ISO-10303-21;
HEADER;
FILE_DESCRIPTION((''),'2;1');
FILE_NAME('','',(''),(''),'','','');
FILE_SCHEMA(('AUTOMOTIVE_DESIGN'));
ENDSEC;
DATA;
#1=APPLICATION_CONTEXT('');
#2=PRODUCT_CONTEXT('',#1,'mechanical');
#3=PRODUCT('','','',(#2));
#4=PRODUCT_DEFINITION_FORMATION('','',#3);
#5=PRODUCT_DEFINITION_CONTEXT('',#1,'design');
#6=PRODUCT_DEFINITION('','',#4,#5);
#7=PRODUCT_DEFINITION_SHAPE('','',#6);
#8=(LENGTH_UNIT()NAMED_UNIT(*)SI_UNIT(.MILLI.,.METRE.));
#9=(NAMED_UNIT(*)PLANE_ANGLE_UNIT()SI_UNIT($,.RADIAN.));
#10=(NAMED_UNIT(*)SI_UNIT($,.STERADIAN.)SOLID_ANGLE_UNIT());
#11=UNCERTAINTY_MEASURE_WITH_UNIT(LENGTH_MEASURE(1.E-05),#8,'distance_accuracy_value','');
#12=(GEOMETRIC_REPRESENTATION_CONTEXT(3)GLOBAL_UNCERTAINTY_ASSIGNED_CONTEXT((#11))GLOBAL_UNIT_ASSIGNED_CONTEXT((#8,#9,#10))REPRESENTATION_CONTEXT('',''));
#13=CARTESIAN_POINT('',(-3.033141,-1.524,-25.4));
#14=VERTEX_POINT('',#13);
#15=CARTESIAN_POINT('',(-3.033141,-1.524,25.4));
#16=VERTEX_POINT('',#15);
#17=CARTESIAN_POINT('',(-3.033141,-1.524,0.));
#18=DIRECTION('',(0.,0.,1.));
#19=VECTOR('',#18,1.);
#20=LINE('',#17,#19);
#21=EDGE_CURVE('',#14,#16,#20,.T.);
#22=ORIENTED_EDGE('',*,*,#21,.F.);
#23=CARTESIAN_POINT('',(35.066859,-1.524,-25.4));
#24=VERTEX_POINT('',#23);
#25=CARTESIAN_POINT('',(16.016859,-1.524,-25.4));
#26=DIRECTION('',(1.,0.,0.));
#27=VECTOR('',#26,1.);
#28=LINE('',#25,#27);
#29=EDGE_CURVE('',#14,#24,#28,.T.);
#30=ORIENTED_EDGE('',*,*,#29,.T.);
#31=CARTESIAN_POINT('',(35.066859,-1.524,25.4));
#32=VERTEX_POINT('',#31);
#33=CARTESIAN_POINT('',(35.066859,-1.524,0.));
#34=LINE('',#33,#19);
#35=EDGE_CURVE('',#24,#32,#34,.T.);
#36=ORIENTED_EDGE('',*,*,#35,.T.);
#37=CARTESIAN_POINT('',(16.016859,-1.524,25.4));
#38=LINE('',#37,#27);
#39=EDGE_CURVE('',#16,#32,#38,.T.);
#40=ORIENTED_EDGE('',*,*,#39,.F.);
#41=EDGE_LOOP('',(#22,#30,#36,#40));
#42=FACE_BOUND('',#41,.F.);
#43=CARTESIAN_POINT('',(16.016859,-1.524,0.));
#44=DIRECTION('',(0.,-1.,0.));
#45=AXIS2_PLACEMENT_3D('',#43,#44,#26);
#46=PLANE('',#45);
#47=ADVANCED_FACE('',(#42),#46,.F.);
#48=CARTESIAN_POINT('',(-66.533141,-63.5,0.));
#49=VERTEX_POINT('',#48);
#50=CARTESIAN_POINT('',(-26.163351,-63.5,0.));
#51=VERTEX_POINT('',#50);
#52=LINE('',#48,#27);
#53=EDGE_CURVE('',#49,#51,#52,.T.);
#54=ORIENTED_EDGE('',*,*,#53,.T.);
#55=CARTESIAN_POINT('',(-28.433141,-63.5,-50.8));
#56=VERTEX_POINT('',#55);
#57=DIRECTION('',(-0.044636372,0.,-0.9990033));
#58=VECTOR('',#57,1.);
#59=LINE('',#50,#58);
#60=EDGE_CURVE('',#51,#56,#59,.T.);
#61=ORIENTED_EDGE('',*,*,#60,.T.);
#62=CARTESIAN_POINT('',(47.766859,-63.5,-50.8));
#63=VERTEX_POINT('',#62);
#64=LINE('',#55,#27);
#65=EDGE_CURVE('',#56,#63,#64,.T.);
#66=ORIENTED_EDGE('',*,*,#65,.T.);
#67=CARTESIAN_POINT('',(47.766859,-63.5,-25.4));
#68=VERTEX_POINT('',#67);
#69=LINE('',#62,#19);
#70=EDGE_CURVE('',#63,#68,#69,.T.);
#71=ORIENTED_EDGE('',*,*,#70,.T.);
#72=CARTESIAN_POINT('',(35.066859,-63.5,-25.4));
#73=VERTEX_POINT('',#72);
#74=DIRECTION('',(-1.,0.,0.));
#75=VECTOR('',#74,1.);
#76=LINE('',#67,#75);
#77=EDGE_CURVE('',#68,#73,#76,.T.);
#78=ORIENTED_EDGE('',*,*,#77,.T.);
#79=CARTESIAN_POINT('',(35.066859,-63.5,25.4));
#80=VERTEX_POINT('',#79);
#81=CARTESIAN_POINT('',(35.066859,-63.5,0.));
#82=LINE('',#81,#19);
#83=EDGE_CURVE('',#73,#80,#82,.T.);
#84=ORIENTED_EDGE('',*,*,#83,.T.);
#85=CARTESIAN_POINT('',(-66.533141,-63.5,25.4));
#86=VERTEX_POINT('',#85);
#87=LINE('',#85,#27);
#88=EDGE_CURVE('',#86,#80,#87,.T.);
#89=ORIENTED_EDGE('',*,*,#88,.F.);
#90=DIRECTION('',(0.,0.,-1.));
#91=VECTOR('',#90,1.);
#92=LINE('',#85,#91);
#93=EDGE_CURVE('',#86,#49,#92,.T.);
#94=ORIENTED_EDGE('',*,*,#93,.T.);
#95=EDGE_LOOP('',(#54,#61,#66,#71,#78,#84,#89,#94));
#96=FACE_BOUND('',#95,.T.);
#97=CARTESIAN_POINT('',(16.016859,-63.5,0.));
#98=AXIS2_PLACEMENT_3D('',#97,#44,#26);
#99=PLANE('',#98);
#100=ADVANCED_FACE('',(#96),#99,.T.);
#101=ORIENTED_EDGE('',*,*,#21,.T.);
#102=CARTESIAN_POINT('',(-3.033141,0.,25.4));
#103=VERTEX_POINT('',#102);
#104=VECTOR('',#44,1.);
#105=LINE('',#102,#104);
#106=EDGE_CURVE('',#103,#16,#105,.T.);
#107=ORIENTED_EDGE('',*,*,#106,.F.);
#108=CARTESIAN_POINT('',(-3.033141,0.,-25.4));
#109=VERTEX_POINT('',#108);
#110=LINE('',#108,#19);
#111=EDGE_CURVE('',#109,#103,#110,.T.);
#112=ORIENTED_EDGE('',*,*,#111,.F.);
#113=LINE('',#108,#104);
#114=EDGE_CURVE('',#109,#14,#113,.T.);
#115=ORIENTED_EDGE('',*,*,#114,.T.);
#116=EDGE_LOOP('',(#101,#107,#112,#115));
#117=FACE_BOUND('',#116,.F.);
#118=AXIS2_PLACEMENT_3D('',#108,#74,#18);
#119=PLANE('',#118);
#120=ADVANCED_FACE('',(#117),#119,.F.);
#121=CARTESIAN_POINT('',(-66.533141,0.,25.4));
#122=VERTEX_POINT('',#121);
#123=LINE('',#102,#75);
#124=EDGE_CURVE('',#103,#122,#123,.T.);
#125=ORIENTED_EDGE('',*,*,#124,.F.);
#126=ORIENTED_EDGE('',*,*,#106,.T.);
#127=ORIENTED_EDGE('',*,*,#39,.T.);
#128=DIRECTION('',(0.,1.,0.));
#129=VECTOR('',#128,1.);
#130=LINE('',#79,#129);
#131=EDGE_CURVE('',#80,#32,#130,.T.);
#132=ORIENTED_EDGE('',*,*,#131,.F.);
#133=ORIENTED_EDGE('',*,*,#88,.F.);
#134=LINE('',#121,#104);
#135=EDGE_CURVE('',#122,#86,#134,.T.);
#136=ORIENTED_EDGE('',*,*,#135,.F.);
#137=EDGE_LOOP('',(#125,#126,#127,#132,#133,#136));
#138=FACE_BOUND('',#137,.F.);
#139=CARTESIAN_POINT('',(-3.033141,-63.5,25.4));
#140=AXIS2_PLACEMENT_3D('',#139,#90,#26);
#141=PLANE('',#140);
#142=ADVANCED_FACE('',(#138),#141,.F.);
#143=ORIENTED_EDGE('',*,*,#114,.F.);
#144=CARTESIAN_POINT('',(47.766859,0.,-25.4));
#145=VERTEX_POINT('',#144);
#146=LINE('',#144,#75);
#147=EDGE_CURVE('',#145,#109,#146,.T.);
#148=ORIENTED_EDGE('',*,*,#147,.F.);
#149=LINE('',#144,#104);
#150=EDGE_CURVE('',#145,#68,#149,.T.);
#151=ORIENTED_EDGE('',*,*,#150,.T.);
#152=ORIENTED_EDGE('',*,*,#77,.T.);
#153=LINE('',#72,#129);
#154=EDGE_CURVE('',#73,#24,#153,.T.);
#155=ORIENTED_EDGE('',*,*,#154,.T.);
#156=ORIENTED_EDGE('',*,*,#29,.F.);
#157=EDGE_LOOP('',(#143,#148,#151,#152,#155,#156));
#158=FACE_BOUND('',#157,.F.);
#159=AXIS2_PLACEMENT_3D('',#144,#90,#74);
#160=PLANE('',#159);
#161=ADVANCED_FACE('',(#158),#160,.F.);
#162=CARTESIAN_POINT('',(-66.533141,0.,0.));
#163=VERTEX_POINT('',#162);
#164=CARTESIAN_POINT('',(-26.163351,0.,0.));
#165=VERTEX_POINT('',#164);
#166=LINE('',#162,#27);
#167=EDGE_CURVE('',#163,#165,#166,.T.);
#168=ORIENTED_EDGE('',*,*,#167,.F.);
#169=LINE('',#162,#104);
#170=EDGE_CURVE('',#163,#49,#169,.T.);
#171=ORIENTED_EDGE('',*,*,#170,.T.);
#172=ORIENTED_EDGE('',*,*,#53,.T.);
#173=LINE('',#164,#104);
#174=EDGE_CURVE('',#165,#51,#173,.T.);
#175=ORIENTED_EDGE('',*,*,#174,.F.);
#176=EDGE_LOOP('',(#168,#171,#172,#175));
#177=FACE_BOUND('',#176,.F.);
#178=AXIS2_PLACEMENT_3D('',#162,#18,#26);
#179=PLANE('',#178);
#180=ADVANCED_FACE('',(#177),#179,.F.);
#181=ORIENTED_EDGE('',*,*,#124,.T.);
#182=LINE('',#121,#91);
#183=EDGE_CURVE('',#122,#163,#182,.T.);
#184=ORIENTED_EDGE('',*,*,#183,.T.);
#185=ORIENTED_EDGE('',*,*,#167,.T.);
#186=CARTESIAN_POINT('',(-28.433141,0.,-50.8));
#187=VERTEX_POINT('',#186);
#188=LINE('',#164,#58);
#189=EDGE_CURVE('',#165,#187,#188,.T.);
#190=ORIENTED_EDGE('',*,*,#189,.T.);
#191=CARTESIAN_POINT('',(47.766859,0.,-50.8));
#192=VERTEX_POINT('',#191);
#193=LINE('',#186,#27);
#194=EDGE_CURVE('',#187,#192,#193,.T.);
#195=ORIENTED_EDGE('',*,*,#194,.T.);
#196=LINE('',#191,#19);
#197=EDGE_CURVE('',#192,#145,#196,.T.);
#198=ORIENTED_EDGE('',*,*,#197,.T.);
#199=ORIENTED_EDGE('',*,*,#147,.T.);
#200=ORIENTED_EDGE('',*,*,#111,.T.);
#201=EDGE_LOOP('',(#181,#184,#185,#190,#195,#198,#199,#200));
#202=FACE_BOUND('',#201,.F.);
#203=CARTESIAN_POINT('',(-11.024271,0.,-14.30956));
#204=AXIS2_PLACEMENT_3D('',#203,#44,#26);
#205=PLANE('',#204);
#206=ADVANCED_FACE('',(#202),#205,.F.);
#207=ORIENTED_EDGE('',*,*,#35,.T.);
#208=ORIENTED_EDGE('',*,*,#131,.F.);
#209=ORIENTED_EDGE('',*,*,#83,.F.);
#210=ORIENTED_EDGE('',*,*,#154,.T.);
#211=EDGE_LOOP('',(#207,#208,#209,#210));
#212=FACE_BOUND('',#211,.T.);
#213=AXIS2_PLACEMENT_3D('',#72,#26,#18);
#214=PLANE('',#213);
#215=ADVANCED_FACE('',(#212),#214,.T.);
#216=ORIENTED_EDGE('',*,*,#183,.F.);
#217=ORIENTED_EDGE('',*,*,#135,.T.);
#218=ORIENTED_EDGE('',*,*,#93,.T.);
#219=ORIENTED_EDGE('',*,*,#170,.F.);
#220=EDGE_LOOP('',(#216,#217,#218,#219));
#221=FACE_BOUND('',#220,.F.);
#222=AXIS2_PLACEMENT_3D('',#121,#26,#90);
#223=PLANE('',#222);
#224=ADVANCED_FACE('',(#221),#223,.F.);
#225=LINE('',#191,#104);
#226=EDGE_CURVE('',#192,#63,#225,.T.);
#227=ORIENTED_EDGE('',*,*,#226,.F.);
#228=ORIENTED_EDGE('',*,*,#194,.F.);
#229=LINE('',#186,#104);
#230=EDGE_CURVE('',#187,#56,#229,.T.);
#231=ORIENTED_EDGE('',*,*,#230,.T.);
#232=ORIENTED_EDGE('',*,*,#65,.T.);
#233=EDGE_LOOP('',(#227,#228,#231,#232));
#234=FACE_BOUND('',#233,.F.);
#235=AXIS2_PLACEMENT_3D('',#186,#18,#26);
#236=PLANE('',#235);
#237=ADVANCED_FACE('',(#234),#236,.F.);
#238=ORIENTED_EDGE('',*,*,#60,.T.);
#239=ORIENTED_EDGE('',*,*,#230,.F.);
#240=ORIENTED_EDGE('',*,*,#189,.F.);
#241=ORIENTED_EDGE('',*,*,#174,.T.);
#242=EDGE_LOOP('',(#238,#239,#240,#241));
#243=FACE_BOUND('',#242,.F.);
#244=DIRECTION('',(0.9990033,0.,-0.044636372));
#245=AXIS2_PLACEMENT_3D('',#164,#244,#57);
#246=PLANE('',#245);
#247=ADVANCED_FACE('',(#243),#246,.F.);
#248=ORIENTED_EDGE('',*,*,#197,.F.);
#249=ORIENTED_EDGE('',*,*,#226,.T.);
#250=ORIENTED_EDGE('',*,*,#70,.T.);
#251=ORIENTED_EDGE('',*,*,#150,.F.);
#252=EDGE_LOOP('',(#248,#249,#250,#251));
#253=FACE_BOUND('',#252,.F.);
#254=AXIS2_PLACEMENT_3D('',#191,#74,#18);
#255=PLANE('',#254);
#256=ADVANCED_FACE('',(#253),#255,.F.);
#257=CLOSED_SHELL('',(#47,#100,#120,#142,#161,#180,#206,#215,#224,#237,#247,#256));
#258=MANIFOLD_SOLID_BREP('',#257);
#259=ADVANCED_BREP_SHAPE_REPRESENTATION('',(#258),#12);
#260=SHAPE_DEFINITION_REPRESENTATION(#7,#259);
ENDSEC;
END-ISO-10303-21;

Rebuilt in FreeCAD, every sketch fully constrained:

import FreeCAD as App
import Part
import Sketcher
from FreeCAD import Vector
Q = App.Units.Quantity


def add_polygon(sketch, points):
    """Adds a closed chain of lines whose ends are joined by coincident constraints."""
    first, n = sketch.GeometryCount, len(points)
    for a, b in zip(points, points[1:] + points[:1]):
        sketch.addGeometry(Part.LineSegment(App.Vector(*a, 0), App.Vector(*b, 0)), False)
    for i in range(n):
        sketch.addConstraint(Sketcher.Constraint("Coincident", first + i, 2, first + (i + 1) % n, 1))

doc = App.newDocument("Part")
params = doc.addObject("Spreadsheet::Sheet", "Params")
for row, (alias, value) in enumerate([
    ("sketch1_width", "3 in"),
    ("sketch1_width2", "2 in"),
    ("sketch1_height", "1 in"),
    ("sketch1_width3", "2.5 in"),
    ("pad1_length", "2.5 in"),
    ("sketch2_height", "2 in"),
    ("sketch2_width", "1.5 in"),
    ("pad2_length", "2.44 in"),
], start=1):
    params.set(f"A{row}", alias)
    params.set(f"B{row}", "=" + value)
    params.setAlias(f"B{row}", alias)

body = doc.addObject("PartDesign::Body", "Body")

# Sketch on XZ plane
sketch1 = body.newObject("Sketcher::SketchObject", "Sketch")
sketch1.AttachmentSupport = (doc.getObject("XZ_Plane"), [""])
sketch1.MapMode = "FlatFace"
add_polygon(sketch1, [(-26, 0), (-28, -51), (48, -51), (48, -25), (-3, -25), (-3, 25), (-67, 25), (-67, 0)])  # lines 0-7
sketch1.addConstraint(Sketcher.Constraint("Horizontal", 1))
sketch1.addConstraint(Sketcher.Constraint("Vertical", 2))
sketch1.addConstraint(Sketcher.Constraint("Horizontal", 3))
sketch1.addConstraint(Sketcher.Constraint("Vertical", 4))
sketch1.addConstraint(Sketcher.Constraint("Horizontal", 5))
sketch1.addConstraint(Sketcher.Constraint("Vertical", 6))
sketch1.addConstraint(Sketcher.Constraint("Horizontal", 7))
sketch1.addConstraint(Sketcher.Constraint("PointOnObject", 6, 2, -1))
sketch1.addConstraint(Sketcher.Constraint("Equal", 3, 4))
sketch1.addConstraint(Sketcher.Constraint("Equal", 2, 6))
sketch1.addConstraint(Sketcher.Constraint("DistanceX", 1, 1, 1, 2, Q("3 in")))
sketch1.addConstraint(Sketcher.Constraint("DistanceX", 3, 2, 3, 1, Q("2 in")))
sketch1.addConstraint(Sketcher.Constraint("DistanceY", 2, 1, 2, 2, Q("1 in")))
sketch1.addConstraint(Sketcher.Constraint("DistanceX", 5, 2, 5, 1, Q("2.5 in")))
sketch1.addConstraint(Sketcher.Constraint("DistanceX", 7, 1, 7, 2, Q("40.36979 mm")))
sketch1.addConstraint(Sketcher.Constraint("DistanceX", 0, 2, -1, 1, Q("28.433141 mm")))
sketch1.setExpression("Constraints[18]", "Params.sketch1_width")
sketch1.setExpression("Constraints[19]", "Params.sketch1_width2")
sketch1.setExpression("Constraints[20]", "Params.sketch1_height")
sketch1.setExpression("Constraints[21]", "Params.sketch1_width3")
pad1 = body.newObject("PartDesign::Pad", "Pad")
pad1.Profile = sketch1
pad1.setExpression("Length", "Params.pad1_length")

# Sketch on XZ plane
sketch2 = body.newObject("Sketcher::SketchObject", "Sketch001")
sketch2.AttachmentSupport = (doc.getObject("XZ_Plane"), [""])
sketch2.MapMode = "FlatFace"
sketch2.AttachmentOffset = App.Placement(Vector(0, 0, 2.5 * 25.4), App.Rotation())
add_polygon(sketch2, [(-3, 25), (-3, -25), (35, -25), (35, 25)])  # lines 0-3
sketch2.addConstraint(Sketcher.Constraint("Vertical", 0))
sketch2.addConstraint(Sketcher.Constraint("Horizontal", 1))
sketch2.addConstraint(Sketcher.Constraint("Vertical", 2))
sketch2.addConstraint(Sketcher.Constraint("Horizontal", 3))
sketch2.addConstraint(Sketcher.Constraint("DistanceY", 0, 2, 0, 1, Q("2 in")))
sketch2.addConstraint(Sketcher.Constraint("DistanceX", 1, 1, 1, 2, Q("1.5 in")))
sketch2.addConstraint(Sketcher.Constraint("DistanceY", 0, 2, -1, 1, Q("1 in")))
sketch2.addConstraint(Sketcher.Constraint("DistanceX", 0, 2, -1, 1, Q("3.033141 mm")))
sketch2.setExpression("Constraints[8]", "Params.sketch2_height")
sketch2.setExpression("Constraints[9]", "Params.sketch2_width")
pad2 = body.newObject("PartDesign::Pad", "Pad001")
pad2.Profile = sketch2
pad2.setExpression("Length", "Params.pad2_length")
pad2.Reversed = True

doc.recompute()
